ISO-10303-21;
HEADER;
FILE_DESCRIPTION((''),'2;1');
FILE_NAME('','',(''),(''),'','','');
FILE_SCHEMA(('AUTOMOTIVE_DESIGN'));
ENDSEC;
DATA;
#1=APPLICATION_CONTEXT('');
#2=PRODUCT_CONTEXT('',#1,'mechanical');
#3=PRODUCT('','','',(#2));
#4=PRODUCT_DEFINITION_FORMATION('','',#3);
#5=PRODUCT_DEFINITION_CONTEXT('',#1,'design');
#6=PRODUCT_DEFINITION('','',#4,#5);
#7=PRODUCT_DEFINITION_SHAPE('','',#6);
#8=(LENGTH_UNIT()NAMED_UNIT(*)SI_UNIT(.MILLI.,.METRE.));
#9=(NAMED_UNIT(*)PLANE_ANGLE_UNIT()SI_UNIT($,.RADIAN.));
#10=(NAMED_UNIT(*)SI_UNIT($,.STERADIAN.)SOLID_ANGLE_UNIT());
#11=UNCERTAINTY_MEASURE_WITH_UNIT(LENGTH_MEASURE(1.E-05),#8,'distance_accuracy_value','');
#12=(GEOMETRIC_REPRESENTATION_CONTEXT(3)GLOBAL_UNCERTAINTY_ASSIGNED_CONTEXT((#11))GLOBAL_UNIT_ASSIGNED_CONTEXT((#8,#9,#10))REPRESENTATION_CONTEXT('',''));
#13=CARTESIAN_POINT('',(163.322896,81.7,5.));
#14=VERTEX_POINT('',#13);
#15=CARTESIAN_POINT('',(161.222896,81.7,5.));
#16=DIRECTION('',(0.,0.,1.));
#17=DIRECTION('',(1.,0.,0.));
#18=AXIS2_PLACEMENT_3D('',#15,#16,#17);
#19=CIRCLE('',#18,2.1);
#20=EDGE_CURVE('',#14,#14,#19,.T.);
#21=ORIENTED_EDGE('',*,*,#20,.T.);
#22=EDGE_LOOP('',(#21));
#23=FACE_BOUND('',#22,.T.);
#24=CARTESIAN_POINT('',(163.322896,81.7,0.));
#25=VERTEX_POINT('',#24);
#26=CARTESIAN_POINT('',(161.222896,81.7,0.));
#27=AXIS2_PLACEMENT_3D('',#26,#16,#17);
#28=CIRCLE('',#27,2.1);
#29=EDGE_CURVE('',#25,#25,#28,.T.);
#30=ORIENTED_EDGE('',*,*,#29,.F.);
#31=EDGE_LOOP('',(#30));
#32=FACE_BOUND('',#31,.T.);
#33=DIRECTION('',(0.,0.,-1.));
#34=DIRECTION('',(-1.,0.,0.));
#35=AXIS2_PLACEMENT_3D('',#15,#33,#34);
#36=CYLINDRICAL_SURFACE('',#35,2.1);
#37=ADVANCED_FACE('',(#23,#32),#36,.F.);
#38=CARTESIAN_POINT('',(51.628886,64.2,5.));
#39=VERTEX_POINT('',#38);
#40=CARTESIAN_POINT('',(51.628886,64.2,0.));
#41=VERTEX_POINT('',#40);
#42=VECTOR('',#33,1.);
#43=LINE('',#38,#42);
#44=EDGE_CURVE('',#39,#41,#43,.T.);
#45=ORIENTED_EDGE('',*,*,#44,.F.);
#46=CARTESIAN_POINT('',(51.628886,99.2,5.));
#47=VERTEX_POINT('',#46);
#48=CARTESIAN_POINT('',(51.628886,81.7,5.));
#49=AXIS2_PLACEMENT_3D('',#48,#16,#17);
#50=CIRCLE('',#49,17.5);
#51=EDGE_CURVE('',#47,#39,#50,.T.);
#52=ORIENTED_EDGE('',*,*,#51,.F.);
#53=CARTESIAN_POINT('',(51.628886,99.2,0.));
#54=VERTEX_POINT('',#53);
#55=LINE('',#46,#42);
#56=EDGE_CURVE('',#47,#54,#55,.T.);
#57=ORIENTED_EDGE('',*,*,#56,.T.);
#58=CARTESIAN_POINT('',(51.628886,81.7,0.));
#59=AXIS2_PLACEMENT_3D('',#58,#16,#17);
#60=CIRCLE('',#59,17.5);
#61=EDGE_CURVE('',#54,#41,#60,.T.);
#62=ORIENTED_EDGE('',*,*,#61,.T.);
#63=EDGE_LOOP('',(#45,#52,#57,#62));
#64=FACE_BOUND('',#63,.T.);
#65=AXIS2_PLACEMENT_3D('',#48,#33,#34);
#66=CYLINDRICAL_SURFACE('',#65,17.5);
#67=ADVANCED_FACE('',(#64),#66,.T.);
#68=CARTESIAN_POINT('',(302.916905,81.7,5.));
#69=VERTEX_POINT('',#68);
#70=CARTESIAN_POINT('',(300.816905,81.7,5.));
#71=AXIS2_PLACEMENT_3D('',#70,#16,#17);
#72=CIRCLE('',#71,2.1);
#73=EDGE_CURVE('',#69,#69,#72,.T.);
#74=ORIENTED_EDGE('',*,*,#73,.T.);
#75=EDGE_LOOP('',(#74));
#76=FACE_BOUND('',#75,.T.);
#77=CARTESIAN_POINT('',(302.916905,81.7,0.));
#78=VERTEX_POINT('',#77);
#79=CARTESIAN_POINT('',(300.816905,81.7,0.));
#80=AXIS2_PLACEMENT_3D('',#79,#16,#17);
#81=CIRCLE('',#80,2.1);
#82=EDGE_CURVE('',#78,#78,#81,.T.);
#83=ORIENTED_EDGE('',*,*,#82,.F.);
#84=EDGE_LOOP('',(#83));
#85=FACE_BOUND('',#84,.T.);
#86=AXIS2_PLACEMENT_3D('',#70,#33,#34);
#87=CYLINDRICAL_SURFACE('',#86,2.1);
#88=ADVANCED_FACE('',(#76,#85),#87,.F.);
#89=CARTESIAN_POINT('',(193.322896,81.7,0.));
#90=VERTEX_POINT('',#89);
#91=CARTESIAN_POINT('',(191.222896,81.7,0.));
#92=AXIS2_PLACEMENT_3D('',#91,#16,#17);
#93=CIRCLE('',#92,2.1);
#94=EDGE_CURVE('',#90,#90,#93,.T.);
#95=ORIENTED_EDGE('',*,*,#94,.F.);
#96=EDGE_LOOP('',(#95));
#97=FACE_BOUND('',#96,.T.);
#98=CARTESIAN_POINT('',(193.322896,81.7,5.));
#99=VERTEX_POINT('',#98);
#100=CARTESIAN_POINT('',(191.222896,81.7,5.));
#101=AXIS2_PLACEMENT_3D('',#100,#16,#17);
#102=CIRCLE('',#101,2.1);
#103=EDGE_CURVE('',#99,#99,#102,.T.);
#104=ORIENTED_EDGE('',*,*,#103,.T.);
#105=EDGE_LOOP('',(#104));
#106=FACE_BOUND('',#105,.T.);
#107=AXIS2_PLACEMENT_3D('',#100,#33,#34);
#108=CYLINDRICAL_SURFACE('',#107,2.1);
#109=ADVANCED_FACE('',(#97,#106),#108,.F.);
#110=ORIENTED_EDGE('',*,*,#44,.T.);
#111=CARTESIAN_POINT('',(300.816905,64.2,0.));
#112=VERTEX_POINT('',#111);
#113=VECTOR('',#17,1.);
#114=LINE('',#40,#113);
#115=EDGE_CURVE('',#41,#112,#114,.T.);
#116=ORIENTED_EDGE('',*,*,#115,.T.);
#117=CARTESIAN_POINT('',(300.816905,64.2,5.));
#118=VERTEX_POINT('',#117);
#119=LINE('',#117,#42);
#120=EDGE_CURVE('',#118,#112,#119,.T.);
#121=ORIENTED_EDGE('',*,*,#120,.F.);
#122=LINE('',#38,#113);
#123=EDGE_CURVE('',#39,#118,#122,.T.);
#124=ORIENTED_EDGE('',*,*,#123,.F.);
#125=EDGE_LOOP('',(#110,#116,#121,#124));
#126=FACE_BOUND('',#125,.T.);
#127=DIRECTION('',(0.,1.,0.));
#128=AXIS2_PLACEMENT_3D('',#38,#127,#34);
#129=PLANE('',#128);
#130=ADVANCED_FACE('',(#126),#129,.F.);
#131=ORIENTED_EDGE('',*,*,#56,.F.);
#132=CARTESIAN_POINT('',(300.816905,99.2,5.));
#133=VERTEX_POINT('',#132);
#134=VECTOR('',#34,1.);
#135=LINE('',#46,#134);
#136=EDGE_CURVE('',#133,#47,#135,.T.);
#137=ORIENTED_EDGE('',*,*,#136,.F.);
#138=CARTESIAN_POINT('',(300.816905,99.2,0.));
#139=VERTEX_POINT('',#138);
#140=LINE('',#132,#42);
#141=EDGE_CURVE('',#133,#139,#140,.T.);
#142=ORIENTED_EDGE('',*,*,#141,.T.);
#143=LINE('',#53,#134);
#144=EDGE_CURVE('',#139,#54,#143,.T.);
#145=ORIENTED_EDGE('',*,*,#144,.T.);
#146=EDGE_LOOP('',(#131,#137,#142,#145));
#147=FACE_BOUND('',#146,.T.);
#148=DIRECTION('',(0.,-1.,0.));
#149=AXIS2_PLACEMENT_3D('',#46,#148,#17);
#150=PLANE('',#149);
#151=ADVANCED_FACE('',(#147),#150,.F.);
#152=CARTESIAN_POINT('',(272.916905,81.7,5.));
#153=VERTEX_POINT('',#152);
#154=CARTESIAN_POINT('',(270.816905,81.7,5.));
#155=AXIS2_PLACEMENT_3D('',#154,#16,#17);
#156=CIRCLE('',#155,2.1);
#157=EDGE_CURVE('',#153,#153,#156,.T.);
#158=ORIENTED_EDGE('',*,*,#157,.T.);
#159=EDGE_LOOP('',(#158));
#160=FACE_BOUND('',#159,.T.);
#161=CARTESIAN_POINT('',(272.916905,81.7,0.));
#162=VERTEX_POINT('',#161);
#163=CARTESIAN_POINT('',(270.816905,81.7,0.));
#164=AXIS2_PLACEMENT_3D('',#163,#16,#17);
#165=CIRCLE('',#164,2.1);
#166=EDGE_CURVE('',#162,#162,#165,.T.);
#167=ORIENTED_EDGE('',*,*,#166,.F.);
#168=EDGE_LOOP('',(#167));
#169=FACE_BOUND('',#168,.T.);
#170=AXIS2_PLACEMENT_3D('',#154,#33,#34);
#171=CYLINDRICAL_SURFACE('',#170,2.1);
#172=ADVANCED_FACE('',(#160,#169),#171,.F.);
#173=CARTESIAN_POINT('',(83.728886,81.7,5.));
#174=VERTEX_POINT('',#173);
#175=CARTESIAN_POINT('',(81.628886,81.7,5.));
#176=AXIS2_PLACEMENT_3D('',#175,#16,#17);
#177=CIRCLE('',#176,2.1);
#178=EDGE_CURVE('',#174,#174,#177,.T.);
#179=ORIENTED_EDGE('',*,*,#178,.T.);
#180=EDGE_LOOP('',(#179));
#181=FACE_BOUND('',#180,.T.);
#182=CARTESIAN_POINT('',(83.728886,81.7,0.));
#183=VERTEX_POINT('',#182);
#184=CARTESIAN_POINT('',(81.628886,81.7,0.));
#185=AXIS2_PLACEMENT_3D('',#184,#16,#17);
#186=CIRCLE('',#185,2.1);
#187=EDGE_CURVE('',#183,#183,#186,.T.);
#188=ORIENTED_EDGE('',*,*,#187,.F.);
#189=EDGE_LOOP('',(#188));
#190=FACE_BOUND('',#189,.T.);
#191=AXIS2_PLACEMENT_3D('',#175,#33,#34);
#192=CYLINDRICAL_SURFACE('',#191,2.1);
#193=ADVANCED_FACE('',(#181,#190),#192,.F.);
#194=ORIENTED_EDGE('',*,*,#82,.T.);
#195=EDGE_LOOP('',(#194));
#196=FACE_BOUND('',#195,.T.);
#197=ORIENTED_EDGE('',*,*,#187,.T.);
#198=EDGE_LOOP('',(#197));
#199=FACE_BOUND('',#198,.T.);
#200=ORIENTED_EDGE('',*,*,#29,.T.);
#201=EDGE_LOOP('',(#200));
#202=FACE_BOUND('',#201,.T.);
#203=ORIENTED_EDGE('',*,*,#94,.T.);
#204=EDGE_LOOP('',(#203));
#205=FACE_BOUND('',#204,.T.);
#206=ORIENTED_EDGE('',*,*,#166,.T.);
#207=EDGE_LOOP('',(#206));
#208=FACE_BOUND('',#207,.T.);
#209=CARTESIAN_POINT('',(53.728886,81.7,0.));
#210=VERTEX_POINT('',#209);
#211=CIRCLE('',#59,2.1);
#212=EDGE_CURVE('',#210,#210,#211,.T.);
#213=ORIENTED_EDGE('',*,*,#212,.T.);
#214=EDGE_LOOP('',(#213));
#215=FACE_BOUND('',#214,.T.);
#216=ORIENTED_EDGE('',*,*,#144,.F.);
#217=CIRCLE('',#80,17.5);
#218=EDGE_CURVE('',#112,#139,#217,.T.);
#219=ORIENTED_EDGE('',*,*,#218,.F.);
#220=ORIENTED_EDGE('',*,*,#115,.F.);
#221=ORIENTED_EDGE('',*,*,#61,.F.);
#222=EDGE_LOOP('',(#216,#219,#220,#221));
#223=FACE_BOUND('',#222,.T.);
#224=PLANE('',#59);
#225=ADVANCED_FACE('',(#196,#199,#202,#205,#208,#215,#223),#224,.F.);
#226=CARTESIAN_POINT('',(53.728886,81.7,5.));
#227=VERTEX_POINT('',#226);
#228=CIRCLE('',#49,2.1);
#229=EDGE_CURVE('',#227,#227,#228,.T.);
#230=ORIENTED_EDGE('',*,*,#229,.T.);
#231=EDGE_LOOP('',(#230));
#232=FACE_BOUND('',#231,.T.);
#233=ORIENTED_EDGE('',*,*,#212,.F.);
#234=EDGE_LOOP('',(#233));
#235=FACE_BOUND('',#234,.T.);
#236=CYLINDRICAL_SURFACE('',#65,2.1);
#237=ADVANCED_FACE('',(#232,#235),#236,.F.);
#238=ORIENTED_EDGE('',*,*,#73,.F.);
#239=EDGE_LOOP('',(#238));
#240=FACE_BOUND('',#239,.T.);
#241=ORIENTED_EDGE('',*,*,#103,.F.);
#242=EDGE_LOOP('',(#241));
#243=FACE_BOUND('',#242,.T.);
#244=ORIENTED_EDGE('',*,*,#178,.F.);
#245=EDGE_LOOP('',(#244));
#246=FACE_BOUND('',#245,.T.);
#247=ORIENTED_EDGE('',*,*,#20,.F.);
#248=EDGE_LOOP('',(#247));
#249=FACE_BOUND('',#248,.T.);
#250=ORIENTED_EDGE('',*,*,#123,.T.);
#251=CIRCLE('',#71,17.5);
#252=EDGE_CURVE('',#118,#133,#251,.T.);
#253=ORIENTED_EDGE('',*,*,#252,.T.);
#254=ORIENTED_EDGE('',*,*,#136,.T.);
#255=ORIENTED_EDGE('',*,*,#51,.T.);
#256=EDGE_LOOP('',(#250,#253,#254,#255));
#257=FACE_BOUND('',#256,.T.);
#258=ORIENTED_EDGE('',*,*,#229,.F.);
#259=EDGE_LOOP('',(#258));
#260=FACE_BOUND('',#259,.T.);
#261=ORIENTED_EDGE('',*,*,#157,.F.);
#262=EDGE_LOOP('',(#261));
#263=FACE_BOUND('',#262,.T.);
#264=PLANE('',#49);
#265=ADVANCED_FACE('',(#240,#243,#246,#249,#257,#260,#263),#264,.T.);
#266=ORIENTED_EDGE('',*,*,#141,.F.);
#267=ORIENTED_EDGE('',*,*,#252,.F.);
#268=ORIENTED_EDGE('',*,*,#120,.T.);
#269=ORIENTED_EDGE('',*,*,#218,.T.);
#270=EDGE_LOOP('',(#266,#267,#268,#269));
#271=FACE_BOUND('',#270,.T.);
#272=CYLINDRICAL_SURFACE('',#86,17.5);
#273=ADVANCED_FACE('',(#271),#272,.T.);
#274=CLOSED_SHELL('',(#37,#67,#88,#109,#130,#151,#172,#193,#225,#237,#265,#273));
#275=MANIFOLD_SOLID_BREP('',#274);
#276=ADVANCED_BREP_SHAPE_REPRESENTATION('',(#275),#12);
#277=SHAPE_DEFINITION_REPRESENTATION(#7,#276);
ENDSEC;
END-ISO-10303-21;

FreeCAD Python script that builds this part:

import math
import FreeCAD as App
import Part
import Sketcher
Q = App.Units.Quantity

doc = App.newDocument("Part")
body = doc.addObject("PartDesign::Body", "Body")

# Sketch on XY plane
sketch1 = body.newObject("Sketcher::SketchObject", "Sketch")
sketch1.AttachmentSupport = (doc.getObject("XY_Plane"), [""])
sketch1.MapMode = "FlatFace"
sketch1.addGeometry([
    Part.LineSegment(App.Vector(300.816905, 99.2, 0), App.Vector(51.628886, 99.2, 0)),  # 0
    Part.ArcOfCircle(Part.Circle(App.Vector(51.628886, 81.7, 0), App.Vector(0, 0, 1), 17.5), math.radians(90), math.radians(270)),  # 1
    Part.LineSegment(App.Vector(51.628886, 64.2, 0), App.Vector(300.816905, 64.2, 0)),  # 2
    Part.ArcOfCircle(Part.Circle(App.Vector(300.816905, 81.7, 0), App.Vector(0, 0, 1), 17.5), math.radians(-90), math.radians(90)),  # 3
    Part.Circle(App.Vector(300.816905, 81.7, 0), App.Vector(0, 0, 1), 2.1),  # 4
    Part.Circle(App.Vector(270.816905, 81.7, 0), App.Vector(0, 0, 1), 2.1),  # 5
    Part.Circle(App.Vector(191.222896, 81.7, 0), App.Vector(0, 0, 1), 2.1),  # 6
    Part.Circle(App.Vector(161.222896, 81.7, 0), App.Vector(0, 0, 1), 2.1),  # 7
    Part.Circle(App.Vector(81.628886, 81.7, 0), App.Vector(0, 0, 1), 2.1),  # 8
    Part.Circle(App.Vector(51.628886, 81.7, 0), App.Vector(0, 0, 1), 2.1),  # 9
], False)
sketch1.addConstraint([
    Sketcher.Constraint("Tangent", 0, 2, 1, 1),
    Sketcher.Constraint("Tangent", 1, 2, 2, 1),
    Sketcher.Constraint("Tangent", 2, 2, 3, 1),
    Sketcher.Constraint("Tangent", 3, 2, 0, 1),
    Sketcher.Constraint("Horizontal", 0),
    Sketcher.Constraint("Horizontal", 2),
    Sketcher.Constraint("Coincident", 4, 3, 3, 3),
    Sketcher.Constraint("Coincident", 9, 3, 1, 3),
    Sketcher.Constraint("Equal", 4, 5),
    Sketcher.Constraint("Equal", 5, 6),
    Sketcher.Constraint("Equal", 6, 7),
    Sketcher.Constraint("Equal", 7, 8),
    Sketcher.Constraint("Equal", 8, 9),
    Sketcher.Constraint("Horizontal", 4, 3, 5, 3),
    Sketcher.Constraint("Horizontal", 5, 3, 6, 3),
    Sketcher.Constraint("Horizontal", 6, 3, 7, 3),
    Sketcher.Constraint("Horizontal", 7, 3, 8, 3),
    Sketcher.Constraint("Diameter", 4, Q("4.2 mm")),
    Sketcher.Constraint("Radius", 1, Q("17.5 mm")),
    Sketcher.Constraint("DistanceX", 5, 3, 3, 3, Q("30 mm")),
    Sketcher.Constraint("DistanceX", 7, 3, 6, 3, Q("30 mm")),
    Sketcher.Constraint("DistanceX", 1, 3, 8, 3, Q("30 mm")),
    Sketcher.Constraint("DistanceY", -1, 1, 1, 3, Q("81.7 mm")),
    Sketcher.Constraint("DistanceX", 0, 2, 0, 1, Q("249.18802 mm")),
    Sketcher.Constraint("DistanceX", 6, 3, 5, 3, Q("79.59401 mm")),
    Sketcher.Constraint("DistanceX", -1, 1, 1, 3, Q("51.628886 mm")),
])
pad1 = body.newObject("PartDesign::Pad", "Pad")
pad1.Profile = sketch1
pad1.Length = 5

doc.recompute()
